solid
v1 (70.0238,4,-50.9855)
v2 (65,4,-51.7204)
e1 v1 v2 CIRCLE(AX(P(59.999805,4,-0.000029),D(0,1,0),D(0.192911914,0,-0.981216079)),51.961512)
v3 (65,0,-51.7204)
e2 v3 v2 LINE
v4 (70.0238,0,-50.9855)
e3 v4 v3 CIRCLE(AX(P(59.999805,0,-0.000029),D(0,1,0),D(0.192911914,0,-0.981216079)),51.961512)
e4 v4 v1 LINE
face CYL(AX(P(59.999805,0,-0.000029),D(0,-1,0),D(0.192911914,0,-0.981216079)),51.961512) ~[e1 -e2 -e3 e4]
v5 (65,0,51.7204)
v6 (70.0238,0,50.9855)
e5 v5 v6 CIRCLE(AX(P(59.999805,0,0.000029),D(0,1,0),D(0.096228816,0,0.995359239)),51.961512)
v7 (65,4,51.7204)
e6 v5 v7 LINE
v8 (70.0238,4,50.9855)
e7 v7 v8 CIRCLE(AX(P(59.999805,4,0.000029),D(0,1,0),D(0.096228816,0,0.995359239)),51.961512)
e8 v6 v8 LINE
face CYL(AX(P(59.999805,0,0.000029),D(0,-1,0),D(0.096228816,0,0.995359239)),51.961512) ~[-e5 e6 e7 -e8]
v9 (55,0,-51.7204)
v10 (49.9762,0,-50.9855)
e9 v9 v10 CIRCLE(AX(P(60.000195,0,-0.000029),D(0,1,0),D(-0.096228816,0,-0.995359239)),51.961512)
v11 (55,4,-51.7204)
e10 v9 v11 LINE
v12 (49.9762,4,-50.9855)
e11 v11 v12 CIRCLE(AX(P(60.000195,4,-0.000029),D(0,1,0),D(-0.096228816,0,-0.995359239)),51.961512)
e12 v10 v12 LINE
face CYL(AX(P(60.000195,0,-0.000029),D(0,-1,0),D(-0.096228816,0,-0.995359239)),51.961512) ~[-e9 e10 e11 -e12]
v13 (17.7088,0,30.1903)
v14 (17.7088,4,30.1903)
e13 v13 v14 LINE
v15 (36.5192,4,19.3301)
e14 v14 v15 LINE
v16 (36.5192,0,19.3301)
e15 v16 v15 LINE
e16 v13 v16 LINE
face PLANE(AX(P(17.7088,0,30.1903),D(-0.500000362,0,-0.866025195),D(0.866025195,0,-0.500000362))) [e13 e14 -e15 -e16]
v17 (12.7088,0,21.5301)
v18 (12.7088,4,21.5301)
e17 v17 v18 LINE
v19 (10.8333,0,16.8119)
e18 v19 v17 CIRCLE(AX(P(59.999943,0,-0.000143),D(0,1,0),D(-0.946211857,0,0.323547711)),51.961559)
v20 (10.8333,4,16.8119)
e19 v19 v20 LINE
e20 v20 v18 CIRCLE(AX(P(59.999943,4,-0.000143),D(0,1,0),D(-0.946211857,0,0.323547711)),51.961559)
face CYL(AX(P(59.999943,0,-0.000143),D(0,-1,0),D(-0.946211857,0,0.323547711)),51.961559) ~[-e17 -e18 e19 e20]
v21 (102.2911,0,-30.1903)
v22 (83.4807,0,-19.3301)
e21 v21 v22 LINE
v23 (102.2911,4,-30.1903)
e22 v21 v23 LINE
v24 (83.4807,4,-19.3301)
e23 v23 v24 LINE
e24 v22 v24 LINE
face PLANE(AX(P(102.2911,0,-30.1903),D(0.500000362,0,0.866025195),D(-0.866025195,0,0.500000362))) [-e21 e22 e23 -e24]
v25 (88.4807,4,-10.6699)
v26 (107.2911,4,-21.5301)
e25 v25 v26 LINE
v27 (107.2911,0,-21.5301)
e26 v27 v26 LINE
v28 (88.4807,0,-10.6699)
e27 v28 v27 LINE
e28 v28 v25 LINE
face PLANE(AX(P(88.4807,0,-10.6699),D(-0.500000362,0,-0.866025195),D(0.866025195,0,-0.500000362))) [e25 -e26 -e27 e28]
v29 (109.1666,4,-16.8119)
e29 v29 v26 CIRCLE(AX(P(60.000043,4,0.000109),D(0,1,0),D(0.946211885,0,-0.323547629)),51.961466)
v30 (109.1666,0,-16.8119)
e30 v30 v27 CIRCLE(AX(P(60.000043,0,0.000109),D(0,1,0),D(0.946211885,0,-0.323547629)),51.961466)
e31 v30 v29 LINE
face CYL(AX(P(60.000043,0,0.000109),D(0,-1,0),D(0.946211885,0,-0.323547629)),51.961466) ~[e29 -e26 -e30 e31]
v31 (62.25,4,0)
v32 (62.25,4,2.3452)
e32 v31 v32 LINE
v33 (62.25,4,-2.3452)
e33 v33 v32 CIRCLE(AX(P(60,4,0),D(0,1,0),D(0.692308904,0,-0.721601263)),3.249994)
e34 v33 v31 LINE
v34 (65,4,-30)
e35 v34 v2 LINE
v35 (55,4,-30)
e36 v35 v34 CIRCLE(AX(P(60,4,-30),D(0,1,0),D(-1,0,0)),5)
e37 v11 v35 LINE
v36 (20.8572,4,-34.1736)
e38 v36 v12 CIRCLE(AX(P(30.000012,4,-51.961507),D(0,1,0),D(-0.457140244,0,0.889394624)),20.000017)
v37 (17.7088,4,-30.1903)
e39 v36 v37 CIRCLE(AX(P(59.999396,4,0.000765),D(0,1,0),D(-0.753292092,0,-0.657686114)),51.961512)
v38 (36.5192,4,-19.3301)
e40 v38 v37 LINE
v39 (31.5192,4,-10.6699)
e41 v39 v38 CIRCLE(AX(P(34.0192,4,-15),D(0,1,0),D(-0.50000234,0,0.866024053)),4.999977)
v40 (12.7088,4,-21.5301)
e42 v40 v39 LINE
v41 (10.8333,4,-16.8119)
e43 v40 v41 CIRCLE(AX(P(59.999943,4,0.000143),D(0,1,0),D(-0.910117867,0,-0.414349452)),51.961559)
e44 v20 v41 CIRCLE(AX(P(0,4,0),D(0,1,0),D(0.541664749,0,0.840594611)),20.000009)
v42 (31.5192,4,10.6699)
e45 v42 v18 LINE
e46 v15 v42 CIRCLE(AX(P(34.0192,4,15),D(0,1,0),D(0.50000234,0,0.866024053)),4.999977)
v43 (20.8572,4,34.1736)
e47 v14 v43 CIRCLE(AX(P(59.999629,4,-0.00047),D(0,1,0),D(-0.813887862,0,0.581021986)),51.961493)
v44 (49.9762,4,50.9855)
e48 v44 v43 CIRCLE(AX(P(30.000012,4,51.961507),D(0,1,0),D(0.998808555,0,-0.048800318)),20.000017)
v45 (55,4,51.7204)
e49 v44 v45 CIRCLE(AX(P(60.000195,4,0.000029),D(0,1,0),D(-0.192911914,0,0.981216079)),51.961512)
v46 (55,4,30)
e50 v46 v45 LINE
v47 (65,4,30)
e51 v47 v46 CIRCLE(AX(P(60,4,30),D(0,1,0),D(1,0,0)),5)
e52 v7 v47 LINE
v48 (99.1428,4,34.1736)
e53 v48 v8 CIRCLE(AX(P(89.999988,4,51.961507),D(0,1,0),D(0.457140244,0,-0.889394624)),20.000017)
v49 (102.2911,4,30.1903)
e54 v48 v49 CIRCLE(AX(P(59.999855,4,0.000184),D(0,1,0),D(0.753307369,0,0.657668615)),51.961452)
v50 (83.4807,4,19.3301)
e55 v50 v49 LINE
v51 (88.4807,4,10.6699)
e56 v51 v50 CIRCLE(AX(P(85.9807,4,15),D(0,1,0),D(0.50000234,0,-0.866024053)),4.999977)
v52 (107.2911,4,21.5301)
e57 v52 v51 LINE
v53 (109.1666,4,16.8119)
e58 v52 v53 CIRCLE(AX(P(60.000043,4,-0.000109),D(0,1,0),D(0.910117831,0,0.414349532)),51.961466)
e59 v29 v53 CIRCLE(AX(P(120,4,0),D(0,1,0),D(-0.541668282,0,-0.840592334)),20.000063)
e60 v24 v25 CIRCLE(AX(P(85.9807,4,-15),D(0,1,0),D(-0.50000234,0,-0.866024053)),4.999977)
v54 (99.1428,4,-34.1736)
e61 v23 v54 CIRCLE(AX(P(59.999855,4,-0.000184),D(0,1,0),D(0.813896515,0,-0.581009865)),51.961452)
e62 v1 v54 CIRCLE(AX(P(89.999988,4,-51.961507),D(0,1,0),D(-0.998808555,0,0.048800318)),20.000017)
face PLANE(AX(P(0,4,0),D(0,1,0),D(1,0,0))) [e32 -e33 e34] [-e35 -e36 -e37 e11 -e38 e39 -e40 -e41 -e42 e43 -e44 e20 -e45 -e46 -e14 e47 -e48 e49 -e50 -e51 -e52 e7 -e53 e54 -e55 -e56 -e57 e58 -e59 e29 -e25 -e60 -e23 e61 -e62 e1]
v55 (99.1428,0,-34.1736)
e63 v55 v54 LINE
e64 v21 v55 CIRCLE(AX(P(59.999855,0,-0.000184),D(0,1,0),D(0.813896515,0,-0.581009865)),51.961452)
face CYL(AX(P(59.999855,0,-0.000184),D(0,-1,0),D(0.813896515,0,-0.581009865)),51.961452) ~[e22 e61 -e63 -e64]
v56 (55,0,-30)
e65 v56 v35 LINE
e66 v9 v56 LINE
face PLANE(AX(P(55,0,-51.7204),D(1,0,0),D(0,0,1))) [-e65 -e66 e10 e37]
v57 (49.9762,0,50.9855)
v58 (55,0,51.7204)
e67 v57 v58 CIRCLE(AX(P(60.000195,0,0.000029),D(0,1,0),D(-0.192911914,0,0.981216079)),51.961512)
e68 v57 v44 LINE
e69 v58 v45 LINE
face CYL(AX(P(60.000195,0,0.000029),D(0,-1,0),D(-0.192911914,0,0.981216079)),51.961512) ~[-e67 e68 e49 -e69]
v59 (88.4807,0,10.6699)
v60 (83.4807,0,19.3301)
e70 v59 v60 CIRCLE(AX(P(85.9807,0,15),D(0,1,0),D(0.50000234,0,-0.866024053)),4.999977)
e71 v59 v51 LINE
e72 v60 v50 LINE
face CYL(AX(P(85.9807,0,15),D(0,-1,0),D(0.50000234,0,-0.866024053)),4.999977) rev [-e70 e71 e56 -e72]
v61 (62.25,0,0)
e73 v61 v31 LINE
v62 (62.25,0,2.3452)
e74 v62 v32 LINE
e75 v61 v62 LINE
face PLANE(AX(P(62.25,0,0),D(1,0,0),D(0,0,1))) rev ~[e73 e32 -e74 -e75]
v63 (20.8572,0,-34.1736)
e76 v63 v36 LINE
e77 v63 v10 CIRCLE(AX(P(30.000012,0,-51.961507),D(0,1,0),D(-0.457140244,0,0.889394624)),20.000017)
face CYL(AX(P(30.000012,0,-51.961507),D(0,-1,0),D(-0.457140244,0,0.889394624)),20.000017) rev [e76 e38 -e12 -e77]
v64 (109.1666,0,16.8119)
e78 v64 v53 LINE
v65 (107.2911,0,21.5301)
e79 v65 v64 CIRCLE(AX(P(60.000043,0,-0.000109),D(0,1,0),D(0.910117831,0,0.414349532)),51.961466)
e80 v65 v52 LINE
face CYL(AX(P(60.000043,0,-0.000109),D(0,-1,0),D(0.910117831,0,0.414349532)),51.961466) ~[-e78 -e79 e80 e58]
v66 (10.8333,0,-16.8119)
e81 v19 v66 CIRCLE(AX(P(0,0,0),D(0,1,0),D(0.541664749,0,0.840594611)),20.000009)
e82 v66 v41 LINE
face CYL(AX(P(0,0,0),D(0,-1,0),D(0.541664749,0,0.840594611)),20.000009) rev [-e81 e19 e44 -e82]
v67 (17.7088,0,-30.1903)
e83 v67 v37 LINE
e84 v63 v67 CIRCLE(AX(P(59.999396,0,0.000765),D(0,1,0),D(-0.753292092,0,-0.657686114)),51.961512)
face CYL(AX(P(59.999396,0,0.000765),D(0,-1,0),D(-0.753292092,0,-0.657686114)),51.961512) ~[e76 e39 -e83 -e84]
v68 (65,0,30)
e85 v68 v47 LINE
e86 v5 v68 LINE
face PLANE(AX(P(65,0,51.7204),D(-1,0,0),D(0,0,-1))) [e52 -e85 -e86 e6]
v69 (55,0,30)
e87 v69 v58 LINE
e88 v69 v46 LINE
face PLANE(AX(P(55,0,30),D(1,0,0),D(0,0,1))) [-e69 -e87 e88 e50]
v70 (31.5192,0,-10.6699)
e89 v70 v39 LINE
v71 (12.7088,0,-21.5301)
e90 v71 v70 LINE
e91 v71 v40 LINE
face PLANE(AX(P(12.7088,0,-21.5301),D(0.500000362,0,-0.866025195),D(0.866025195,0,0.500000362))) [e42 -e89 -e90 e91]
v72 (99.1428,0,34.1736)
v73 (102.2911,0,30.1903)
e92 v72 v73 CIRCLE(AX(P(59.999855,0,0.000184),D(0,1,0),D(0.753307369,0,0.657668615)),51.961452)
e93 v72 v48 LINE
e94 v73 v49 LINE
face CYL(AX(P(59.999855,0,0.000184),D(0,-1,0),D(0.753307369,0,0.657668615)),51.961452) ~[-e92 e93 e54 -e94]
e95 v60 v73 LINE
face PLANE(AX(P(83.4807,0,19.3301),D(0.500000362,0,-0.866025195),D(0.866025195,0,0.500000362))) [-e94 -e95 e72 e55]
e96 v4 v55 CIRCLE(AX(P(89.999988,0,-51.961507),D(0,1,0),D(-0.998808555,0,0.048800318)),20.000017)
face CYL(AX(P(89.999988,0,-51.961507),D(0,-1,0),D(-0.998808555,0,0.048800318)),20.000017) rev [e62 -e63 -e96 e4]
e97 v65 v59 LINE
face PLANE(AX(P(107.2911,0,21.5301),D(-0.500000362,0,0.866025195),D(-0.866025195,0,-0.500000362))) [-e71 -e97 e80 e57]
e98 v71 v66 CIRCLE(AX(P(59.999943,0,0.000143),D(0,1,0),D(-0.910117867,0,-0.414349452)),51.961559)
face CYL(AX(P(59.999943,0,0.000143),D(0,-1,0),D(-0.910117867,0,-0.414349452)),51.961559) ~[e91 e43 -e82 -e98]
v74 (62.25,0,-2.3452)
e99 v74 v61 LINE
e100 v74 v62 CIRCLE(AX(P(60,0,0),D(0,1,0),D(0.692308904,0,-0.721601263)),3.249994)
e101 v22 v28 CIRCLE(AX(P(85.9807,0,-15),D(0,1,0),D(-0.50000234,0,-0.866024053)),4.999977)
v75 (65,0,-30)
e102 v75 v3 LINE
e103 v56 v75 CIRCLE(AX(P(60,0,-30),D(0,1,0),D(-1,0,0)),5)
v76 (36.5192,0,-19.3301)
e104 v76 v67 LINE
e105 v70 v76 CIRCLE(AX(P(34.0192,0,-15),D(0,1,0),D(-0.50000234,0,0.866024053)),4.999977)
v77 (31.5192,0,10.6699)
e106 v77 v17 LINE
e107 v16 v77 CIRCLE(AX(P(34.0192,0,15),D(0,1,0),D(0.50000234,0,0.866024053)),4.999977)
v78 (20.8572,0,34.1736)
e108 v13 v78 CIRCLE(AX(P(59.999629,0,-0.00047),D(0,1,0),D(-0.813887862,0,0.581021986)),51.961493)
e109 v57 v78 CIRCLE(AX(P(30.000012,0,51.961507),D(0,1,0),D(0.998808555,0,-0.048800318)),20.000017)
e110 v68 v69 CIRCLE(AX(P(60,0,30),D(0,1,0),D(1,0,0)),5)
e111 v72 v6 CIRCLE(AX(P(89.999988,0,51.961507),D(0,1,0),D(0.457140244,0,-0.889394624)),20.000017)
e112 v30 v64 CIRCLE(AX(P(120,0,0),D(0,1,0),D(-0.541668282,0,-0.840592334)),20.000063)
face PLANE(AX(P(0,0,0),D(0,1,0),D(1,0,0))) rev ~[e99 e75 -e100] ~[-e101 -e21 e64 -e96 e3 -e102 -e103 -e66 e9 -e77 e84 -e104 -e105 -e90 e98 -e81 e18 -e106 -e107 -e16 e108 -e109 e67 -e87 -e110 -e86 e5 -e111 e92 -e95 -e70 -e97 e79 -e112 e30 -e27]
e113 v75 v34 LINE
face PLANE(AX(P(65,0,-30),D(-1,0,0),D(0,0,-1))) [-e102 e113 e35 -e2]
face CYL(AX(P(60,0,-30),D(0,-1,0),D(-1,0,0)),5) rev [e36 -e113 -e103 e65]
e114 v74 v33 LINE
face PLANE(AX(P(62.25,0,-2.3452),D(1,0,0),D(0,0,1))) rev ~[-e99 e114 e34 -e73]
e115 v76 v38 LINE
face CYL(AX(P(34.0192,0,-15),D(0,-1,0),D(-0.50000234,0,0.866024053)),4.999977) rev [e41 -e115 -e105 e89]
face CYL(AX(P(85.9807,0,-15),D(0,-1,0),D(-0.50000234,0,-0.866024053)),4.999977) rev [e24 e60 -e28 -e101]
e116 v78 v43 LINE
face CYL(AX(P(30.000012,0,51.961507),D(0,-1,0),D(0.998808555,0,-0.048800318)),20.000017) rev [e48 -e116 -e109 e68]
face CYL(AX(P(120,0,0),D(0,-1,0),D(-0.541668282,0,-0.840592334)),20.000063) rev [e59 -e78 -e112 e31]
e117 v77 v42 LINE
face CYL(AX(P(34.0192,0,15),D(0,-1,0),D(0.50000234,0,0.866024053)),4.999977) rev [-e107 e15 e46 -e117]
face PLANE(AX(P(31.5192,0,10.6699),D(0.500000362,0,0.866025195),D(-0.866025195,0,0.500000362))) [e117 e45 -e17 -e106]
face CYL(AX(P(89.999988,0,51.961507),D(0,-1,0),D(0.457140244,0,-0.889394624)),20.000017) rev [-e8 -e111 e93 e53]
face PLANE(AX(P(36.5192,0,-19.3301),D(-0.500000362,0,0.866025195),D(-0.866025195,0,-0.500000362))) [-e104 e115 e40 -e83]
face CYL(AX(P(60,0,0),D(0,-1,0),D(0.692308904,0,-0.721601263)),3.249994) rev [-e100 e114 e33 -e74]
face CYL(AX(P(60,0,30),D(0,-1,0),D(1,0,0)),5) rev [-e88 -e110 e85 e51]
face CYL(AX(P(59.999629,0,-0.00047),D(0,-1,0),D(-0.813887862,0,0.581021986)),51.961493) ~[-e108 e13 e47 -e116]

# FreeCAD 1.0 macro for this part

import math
import FreeCAD as App
import Part
import Sketcher
Q = App.Units.Quantity

doc = App.newDocument("Part")
body = doc.addObject("PartDesign::Body", "Body")

# Sketch on XZ plane
sketch1 = body.newObject("Sketcher::SketchObject", "Sketch")
sketch1.AttachmentSupport = (doc.getObject("XZ_Plane"), [""])
sketch1.MapMode = "FlatFace"
sketch1.addGeometry([
    Part.LineSegment(App.Vector(17.7088, -30.1903, 0), App.Vector(36.5192, -19.3301, 0)),  # 0
    Part.ArcOfCircle(Part.Circle(App.Vector(34.0192, -15, 0), App.Vector(0, 0, 1), 4.999977), math.radians(-59.999845), math.radians(120.000155)),  # 1
    Part.LineSegment(App.Vector(31.5192, -10.6699, 0), App.Vector(12.7088, -21.5301, 0)),  # 2
    Part.ArcOfCircle(Part.Circle(App.Vector(60.005811, 0.002476, 0), App.Vector(0, 0, 1), 51.967865), math.radians(-161.122048), math.radians(-155.521985)),  # 3
    Part.ArcOfCircle(Part.Circle(App.Vector(0, 0, 0), App.Vector(0, 0, 1), 20.000009), math.radians(-57.202962), math.radians(57.202962)),  # 4
    Part.ArcOfCircle(Part.Circle(App.Vector(59.994077, 0.002188, 0), App.Vector(0, 0, 1), 51.955254), math.radians(155.521305), math.radians(161.122728)),  # 5
    Part.LineSegment(App.Vector(12.7088, 21.5301, 0), App.Vector(31.5192, 10.6699, 0)),  # 6
    Part.ArcOfCircle(Part.Circle(App.Vector(34.0192, 15, 0), App.Vector(0, 0, 1), 4.999977), math.radians(-120.000155), math.radians(59.999845)),  # 7
    Part.LineSegment(App.Vector(36.5192, 19.3301, 0), App.Vector(17.7088, 30.1903, 0)),  # 8
    Part.ArcOfCircle(Part.Circle(App.Vector(59.980411, 0.014719, 0), App.Vector(0, 0, 1), 51.937027), math.radians(138.875453), math.radians(144.478864)),  # 9
    Part.ArcOfCircle(Part.Circle(App.Vector(30, 51.9615, 0), App.Vector(0, 0, 1), 20.000029), math.radians(-117.202704), math.radians(-2.797141)),  # 10
    Part.ArcOfCircle(Part.Circle(App.Vector(60.001361, -0.007944, 0), App.Vector(0, 0, 1), 51.96956), math.radians(95.522484), math.radians(101.122335)),  # 11
    Part.LineSegment(App.Vector(55, 51.7204, 0), App.Vector(55, 30, 0)),  # 12
    Part.ArcOfCircle(Part.Circle(App.Vector(60, 30, 0), App.Vector(0, 0, 1), 5), math.radians(180), math.radians(360)),  # 13
    Part.LineSegment(App.Vector(65, 30, 0), App.Vector(65, 51.7204, 0)),  # 14
    Part.ArcOfCircle(Part.Circle(App.Vector(60.000971, 0.007998, 0), App.Vector(0, 0, 1), 51.953468), math.radians(78.876797), math.radians(84.478384)),  # 15
    Part.ArcOfCircle(Part.Circle(App.Vector(90, 51.9615, 0), App.Vector(0, 0, 1), 20.000004), math.radians(-177.202859), math.radians(-62.797296)),  # 16
    Part.ArcOfCircle(Part.Circle(App.Vector(60.007362, 0.006117, 0), App.Vector(0, 0, 1), 51.951895), math.radians(35.521087), math.radians(41.122825)),  # 17
    Part.LineSegment(App.Vector(102.2911, 30.1903, 0), App.Vector(83.4807, 19.3301, 0)),  # 18
    Part.ArcOfCircle(Part.Circle(App.Vector(85.9807, 15, 0), App.Vector(0, 0, 1), 4.999977), math.radians(120.000155), math.radians(300.000155)),  # 19
    Part.LineSegment(App.Vector(88.4807, 10.6699, 0), App.Vector(107.2911, 21.5301, 0)),  # 20
    Part.ArcOfCircle(Part.Circle(App.Vector(59.99558, -0.001883, 0), App.Vector(0, 0, 1), 51.966263), math.radians(18.877865), math.radians(24.478101)),  # 21
    Part.ArcOfCircle(Part.Circle(App.Vector(120, 0, 0), App.Vector(0, 0, 1), 20.000063), math.radians(122.797278), math.radians(237.202722)),  # 22
    Part.ArcOfCircle(Part.Circle(App.Vector(60.004506, -0.001665, 0), App.Vector(0, 0, 1), 51.95667), math.radians(-24.478619), math.radians(-18.877348)),  # 23
    Part.LineSegment(App.Vector(107.2911, -21.5301, 0), App.Vector(88.4807, -10.6699, 0)),  # 24
    Part.ArcOfCircle(Part.Circle(App.Vector(85.9807, -15, 0), App.Vector(0, 0, 1), 4.999977), math.radians(59.999845), math.radians(239.999845)),  # 25
    Part.LineSegment(App.Vector(83.4807, -19.3301, 0), App.Vector(102.2911, -30.1903, 0)),  # 26
    Part.ArcOfCircle(Part.Circle(App.Vector(59.992345, 0.005752, 0), App.Vector(0, 0, 1), 51.971014), math.radians(-41.121794), math.radians(-35.522118)),  # 27
    Part.ArcOfCircle(Part.Circle(App.Vector(90, -51.9615, 0), App.Vector(0, 0, 1), 20.000029), math.radians(62.797296), math.radians(177.202859)),  # 28
    Part.ArcOfCircle(Part.Circle(App.Vector(59.998639, 0.007944, 0), App.Vector(0, 0, 1), 51.96956), math.radians(-84.477516), math.radians(-78.877665)),  # 29
    Part.LineSegment(App.Vector(65, -51.7204, 0), App.Vector(65, -30, 0)),  # 30
    Part.ArcOfCircle(Part.Circle(App.Vector(60, -30, 0), App.Vector(0, 0, 1), 5), math.radians(0), math.radians(180)),  # 31
    Part.LineSegment(App.Vector(55, -30, 0), App.Vector(55, -51.7204, 0)),  # 32
    Part.ArcOfCircle(Part.Circle(App.Vector(59.999029, -0.007998, 0), App.Vector(0, 0, 1), 51.953468), math.radians(-101.123203), math.radians(-95.521616)),  # 33
    Part.ArcOfCircle(Part.Circle(App.Vector(30, -51.9615, 0), App.Vector(0, 0, 1), 20.000004), math.radians(2.797141), math.radians(117.202704)),  # 34
    Part.ArcOfCircle(Part.Circle(App.Vector(60.030666, 0.025478, 0), App.Vector(0, 0, 1), 52.00132), math.radians(-144.474987), math.radians(-138.878507)),  # 35
    Part.ArcOfCircle(Part.Circle(App.Vector(60, 0, 0), App.Vector(0, 0, 1), 3.249994), math.radians(46.186842), math.radians(313.813158)),  # 36
    Part.LineSegment(App.Vector(62.25, -2.3452, 0), App.Vector(62.25, 2.3452, 0)),  # 37
], False)
sketch1.addConstraint([
    Sketcher.Constraint("Tangent", 0, 2, 1, 1),
    Sketcher.Constraint("Tangent", 1, 2, 2, 1),
    Sketcher.Constraint("Coincident", 2, 2, 3, 2),
    Sketcher.Constraint("Coincident", 3, 1, 4, 1),
    Sketcher.Constraint("Coincident", 4, 2, 5, 2),
    Sketcher.Constraint("Coincident", 5, 1, 6, 1),
    Sketcher.Constraint("Tangent", 6, 2, 7, 1),
    Sketcher.Constraint("Tangent", 7, 2, 8, 1),
    Sketcher.Constraint("Coincident", 8, 2, 9, 2),
    Sketcher.Constraint("Coincident", 9, 1, 10, 1),
    Sketcher.Constraint("Coincident", 10, 2, 11, 2),
    Sketcher.Constraint("Coincident", 11, 1, 12, 1),
    Sketcher.Constraint("Tangent", 12, 2, 13, 1),
    Sketcher.Constraint("Tangent", 13, 2, 14, 1),
    Sketcher.Constraint("Coincident", 14, 2, 15, 2),
    Sketcher.Constraint("Coincident", 15, 1, 16, 1),
    Sketcher.Constraint("Coincident", 16, 2, 17, 2),
    Sketcher.Constraint("Coincident", 17, 1, 18, 1),
    Sketcher.Constraint("Tangent", 18, 2, 19, 1),
    Sketcher.Constraint("Tangent", 19, 2, 20, 1),
    Sketcher.Constraint("Coincident", 20, 2, 21, 2),
    Sketcher.Constraint("Coincident", 21, 1, 22, 1),
    Sketcher.Constraint("Coincident", 22, 2, 23, 2),
    Sketcher.Constraint("Coincident", 23, 1, 24, 1),
    Sketcher.Constraint("Tangent", 24, 2, 25, 1),
    Sketcher.Constraint("Tangent", 25, 2, 26, 1),
    Sketcher.Constraint("Coincident", 26, 2, 27, 2),
    Sketcher.Constraint("Coincident", 27, 1, 28, 1),
    Sketcher.Constraint("Coincident", 28, 2, 29, 2),
    Sketcher.Constraint("Coincident", 29, 1, 30, 1),
    Sketcher.Constraint("Tangent", 30, 2, 31, 1),
    Sketcher.Constraint("Tangent", 31, 2, 32, 1),
    Sketcher.Constraint("Coincident", 32, 2, 33, 2),
    Sketcher.Constraint("Coincident", 33, 1, 34, 1),
    Sketcher.Constraint("Coincident", 34, 2, 35, 2),
    Sketcher.Constraint("Coincident", 35, 1, 0, 1),
    Sketcher.Constraint("Coincident", 36, 1, 37, 2),
    Sketcher.Constraint("Coincident", 37, 1, 36, 2),
    Sketcher.Constraint("Vertical", 12),
    Sketcher.Constraint("Vertical", 14),
    Sketcher.Constraint("Vertical", 30),
    Sketcher.Constraint("Vertical", 32),
    Sketcher.Constraint("Vertical", 37),
    Sketcher.Constraint("Coincident", 4, 3, -1, 1),
    Sketcher.Constraint("Equal", 1, 7),
    Sketcher.Constraint("Equal", 4, 10),
    Sketcher.Constraint("Equal", 7, 13),
    Sketcher.Constraint("Equal", 10, 16),
    Sketcher.Constraint("Equal", 13, 19),
    Sketcher.Constraint("Equal", 16, 22),
    Sketcher.Constraint("Equal", 19, 25),
    Sketcher.Constraint("Equal", 22, 28),
    Sketcher.Constraint("Equal", 11, 29),
    Sketcher.Constraint("Equal", 25, 31),
    Sketcher.Constraint("Equal", 15, 33),
    Sketcher.Constraint("Equal", 28, 34),
    Sketcher.Constraint("Symmetric", 1, 3, 7, 3, -1),
    Sketcher.Constraint("Symmetric", 11, 3, 15, 3, -1),
    Sketcher.Constraint("Symmetric", 19, 3, 25, 3, -1),
    Sketcher.Constraint("Symmetric", 16, 3, 28, 3, -1),
    Sketcher.Constraint("Symmetric", 13, 3, 31, 3, -1),
    Sketcher.Constraint("Symmetric", 29, 3, 33, 3, -1),
    Sketcher.Constraint("Symmetric", 10, 3, 34, 3, -1),
    Sketcher.Constraint("Symmetric", 2, 2, 5, 1, -1),
    Sketcher.Constraint("Symmetric", 21, 1, 22, 2, -1),
    Sketcher.Constraint("Symmetric", 20, 2, 23, 1, -1),
    Sketcher.Constraint("Symmetric", 17, 1, 26, 2, -1),
    Sketcher.Constraint("Symmetric", 8, 2, 35, 1, -1),
    Sketcher.Constraint("PointOnObject", 36, 3, -1),
    Sketcher.Constraint("Parallel", 0, 2),
    Sketcher.Constraint("Parallel", 2, 18),
    Sketcher.Constraint("Parallel", 18, 20),
    Sketcher.Constraint("Horizontal", 10, 3, 16, 3),
    Sketcher.Constraint("Horizontal", 7, 3, 19, 3),
    Sketcher.Constraint("Horizontal", 15, 3, 29, 3),
    Sketcher.Constraint("Horizontal", 11, 1, 14, 2),
    Sketcher.Constraint("Horizontal", 10, 2, 15, 1),
    Sketcher.Constraint("Horizontal", 9, 1, 16, 2),
    Sketcher.Constraint("Horizontal", 8, 2, 17, 1),
    Sketcher.Constraint("Horizontal", 5, 1, 20, 2),
    Sketcher.Constraint("Horizontal", 4, 2, 21, 1),
    Sketcher.Constraint("Horizontal", 29, 1, 32, 2),
    Sketcher.Constraint("Horizontal", 28, 2, 33, 1),
    Sketcher.Constraint("Horizontal", 27, 1, 34, 2),
    Sketcher.Constraint("Vertical", 31, 3, 36, 3),
    Sketcher.Constraint("Vertical", 3, 1, 4, 2),
    Sketcher.Constraint("Vertical", 16, 2, 27, 1),
    Sketcher.Constraint("Equal", 0, 2),
    Sketcher.Constraint("Radius", 1, 5.0),
    Sketcher.Constraint("Radius", 4, 20.0),
    Sketcher.Constraint("Angle", 0, Q("30 deg")),
    Sketcher.Constraint("Radius", 36, 3.25),
    Sketcher.Constraint("DistanceY", 1, 3, -1, 1, 15.0),
    Sketcher.Constraint("DistanceX", -1, 1, 10, 3, 30.0),
    Sketcher.Constraint("DistanceX", -1, 1, 13, 3, 60.0),
    Sketcher.Constraint("DistanceY", -1, 1, 13, 3, 30.0),
    Sketcher.Constraint("DistanceX", -1, 1, 22, 3, 120.0),
    Sketcher.Constraint("Radius", 9, 51.937),
    Sketcher.Constraint("Radius", 17, 51.952),
    Sketcher.Constraint("Radius", 27, 51.971),
    Sketcher.Constraint("Radius", 3, 51.9679),
    Sketcher.Constraint("Radius", 5, 51.9553),
    Sketcher.Constraint("Radius", 11, 51.9696),
    Sketcher.Constraint("Radius", 15, 51.9535),
    Sketcher.Constraint("Radius", 21, 51.9663),
    Sketcher.Constraint("Radius", 23, 51.9567),
    Sketcher.Constraint("Radius", 35, 52.0013),
    Sketcher.Constraint("DistanceY", 2, 2, -1, 1, 21.53),
    Sketcher.Constraint("DistanceX", -1, 1, 36, 1, 62.25),
    Sketcher.Constraint("DistanceX", -1, 1, 5, 3, 59.994),
    Sketcher.Constraint("DistanceY", -1, 1, 17, 3, 0.006),
    Sketcher.Constraint("DistanceY", 21, 3, -1, 1, 0.002),
    Sketcher.Constraint("DistanceY", -1, 1, 4, 2, 16.812),
    Sketcher.Constraint("DistanceY", -1, 1, 10, 3, 51.9615),
])
pad1 = body.newObject("PartDesign::Pad", "Pad")
pad1.Profile = sketch1
pad1.Length = 4
pad1.Reversed = True

doc.recompute()
